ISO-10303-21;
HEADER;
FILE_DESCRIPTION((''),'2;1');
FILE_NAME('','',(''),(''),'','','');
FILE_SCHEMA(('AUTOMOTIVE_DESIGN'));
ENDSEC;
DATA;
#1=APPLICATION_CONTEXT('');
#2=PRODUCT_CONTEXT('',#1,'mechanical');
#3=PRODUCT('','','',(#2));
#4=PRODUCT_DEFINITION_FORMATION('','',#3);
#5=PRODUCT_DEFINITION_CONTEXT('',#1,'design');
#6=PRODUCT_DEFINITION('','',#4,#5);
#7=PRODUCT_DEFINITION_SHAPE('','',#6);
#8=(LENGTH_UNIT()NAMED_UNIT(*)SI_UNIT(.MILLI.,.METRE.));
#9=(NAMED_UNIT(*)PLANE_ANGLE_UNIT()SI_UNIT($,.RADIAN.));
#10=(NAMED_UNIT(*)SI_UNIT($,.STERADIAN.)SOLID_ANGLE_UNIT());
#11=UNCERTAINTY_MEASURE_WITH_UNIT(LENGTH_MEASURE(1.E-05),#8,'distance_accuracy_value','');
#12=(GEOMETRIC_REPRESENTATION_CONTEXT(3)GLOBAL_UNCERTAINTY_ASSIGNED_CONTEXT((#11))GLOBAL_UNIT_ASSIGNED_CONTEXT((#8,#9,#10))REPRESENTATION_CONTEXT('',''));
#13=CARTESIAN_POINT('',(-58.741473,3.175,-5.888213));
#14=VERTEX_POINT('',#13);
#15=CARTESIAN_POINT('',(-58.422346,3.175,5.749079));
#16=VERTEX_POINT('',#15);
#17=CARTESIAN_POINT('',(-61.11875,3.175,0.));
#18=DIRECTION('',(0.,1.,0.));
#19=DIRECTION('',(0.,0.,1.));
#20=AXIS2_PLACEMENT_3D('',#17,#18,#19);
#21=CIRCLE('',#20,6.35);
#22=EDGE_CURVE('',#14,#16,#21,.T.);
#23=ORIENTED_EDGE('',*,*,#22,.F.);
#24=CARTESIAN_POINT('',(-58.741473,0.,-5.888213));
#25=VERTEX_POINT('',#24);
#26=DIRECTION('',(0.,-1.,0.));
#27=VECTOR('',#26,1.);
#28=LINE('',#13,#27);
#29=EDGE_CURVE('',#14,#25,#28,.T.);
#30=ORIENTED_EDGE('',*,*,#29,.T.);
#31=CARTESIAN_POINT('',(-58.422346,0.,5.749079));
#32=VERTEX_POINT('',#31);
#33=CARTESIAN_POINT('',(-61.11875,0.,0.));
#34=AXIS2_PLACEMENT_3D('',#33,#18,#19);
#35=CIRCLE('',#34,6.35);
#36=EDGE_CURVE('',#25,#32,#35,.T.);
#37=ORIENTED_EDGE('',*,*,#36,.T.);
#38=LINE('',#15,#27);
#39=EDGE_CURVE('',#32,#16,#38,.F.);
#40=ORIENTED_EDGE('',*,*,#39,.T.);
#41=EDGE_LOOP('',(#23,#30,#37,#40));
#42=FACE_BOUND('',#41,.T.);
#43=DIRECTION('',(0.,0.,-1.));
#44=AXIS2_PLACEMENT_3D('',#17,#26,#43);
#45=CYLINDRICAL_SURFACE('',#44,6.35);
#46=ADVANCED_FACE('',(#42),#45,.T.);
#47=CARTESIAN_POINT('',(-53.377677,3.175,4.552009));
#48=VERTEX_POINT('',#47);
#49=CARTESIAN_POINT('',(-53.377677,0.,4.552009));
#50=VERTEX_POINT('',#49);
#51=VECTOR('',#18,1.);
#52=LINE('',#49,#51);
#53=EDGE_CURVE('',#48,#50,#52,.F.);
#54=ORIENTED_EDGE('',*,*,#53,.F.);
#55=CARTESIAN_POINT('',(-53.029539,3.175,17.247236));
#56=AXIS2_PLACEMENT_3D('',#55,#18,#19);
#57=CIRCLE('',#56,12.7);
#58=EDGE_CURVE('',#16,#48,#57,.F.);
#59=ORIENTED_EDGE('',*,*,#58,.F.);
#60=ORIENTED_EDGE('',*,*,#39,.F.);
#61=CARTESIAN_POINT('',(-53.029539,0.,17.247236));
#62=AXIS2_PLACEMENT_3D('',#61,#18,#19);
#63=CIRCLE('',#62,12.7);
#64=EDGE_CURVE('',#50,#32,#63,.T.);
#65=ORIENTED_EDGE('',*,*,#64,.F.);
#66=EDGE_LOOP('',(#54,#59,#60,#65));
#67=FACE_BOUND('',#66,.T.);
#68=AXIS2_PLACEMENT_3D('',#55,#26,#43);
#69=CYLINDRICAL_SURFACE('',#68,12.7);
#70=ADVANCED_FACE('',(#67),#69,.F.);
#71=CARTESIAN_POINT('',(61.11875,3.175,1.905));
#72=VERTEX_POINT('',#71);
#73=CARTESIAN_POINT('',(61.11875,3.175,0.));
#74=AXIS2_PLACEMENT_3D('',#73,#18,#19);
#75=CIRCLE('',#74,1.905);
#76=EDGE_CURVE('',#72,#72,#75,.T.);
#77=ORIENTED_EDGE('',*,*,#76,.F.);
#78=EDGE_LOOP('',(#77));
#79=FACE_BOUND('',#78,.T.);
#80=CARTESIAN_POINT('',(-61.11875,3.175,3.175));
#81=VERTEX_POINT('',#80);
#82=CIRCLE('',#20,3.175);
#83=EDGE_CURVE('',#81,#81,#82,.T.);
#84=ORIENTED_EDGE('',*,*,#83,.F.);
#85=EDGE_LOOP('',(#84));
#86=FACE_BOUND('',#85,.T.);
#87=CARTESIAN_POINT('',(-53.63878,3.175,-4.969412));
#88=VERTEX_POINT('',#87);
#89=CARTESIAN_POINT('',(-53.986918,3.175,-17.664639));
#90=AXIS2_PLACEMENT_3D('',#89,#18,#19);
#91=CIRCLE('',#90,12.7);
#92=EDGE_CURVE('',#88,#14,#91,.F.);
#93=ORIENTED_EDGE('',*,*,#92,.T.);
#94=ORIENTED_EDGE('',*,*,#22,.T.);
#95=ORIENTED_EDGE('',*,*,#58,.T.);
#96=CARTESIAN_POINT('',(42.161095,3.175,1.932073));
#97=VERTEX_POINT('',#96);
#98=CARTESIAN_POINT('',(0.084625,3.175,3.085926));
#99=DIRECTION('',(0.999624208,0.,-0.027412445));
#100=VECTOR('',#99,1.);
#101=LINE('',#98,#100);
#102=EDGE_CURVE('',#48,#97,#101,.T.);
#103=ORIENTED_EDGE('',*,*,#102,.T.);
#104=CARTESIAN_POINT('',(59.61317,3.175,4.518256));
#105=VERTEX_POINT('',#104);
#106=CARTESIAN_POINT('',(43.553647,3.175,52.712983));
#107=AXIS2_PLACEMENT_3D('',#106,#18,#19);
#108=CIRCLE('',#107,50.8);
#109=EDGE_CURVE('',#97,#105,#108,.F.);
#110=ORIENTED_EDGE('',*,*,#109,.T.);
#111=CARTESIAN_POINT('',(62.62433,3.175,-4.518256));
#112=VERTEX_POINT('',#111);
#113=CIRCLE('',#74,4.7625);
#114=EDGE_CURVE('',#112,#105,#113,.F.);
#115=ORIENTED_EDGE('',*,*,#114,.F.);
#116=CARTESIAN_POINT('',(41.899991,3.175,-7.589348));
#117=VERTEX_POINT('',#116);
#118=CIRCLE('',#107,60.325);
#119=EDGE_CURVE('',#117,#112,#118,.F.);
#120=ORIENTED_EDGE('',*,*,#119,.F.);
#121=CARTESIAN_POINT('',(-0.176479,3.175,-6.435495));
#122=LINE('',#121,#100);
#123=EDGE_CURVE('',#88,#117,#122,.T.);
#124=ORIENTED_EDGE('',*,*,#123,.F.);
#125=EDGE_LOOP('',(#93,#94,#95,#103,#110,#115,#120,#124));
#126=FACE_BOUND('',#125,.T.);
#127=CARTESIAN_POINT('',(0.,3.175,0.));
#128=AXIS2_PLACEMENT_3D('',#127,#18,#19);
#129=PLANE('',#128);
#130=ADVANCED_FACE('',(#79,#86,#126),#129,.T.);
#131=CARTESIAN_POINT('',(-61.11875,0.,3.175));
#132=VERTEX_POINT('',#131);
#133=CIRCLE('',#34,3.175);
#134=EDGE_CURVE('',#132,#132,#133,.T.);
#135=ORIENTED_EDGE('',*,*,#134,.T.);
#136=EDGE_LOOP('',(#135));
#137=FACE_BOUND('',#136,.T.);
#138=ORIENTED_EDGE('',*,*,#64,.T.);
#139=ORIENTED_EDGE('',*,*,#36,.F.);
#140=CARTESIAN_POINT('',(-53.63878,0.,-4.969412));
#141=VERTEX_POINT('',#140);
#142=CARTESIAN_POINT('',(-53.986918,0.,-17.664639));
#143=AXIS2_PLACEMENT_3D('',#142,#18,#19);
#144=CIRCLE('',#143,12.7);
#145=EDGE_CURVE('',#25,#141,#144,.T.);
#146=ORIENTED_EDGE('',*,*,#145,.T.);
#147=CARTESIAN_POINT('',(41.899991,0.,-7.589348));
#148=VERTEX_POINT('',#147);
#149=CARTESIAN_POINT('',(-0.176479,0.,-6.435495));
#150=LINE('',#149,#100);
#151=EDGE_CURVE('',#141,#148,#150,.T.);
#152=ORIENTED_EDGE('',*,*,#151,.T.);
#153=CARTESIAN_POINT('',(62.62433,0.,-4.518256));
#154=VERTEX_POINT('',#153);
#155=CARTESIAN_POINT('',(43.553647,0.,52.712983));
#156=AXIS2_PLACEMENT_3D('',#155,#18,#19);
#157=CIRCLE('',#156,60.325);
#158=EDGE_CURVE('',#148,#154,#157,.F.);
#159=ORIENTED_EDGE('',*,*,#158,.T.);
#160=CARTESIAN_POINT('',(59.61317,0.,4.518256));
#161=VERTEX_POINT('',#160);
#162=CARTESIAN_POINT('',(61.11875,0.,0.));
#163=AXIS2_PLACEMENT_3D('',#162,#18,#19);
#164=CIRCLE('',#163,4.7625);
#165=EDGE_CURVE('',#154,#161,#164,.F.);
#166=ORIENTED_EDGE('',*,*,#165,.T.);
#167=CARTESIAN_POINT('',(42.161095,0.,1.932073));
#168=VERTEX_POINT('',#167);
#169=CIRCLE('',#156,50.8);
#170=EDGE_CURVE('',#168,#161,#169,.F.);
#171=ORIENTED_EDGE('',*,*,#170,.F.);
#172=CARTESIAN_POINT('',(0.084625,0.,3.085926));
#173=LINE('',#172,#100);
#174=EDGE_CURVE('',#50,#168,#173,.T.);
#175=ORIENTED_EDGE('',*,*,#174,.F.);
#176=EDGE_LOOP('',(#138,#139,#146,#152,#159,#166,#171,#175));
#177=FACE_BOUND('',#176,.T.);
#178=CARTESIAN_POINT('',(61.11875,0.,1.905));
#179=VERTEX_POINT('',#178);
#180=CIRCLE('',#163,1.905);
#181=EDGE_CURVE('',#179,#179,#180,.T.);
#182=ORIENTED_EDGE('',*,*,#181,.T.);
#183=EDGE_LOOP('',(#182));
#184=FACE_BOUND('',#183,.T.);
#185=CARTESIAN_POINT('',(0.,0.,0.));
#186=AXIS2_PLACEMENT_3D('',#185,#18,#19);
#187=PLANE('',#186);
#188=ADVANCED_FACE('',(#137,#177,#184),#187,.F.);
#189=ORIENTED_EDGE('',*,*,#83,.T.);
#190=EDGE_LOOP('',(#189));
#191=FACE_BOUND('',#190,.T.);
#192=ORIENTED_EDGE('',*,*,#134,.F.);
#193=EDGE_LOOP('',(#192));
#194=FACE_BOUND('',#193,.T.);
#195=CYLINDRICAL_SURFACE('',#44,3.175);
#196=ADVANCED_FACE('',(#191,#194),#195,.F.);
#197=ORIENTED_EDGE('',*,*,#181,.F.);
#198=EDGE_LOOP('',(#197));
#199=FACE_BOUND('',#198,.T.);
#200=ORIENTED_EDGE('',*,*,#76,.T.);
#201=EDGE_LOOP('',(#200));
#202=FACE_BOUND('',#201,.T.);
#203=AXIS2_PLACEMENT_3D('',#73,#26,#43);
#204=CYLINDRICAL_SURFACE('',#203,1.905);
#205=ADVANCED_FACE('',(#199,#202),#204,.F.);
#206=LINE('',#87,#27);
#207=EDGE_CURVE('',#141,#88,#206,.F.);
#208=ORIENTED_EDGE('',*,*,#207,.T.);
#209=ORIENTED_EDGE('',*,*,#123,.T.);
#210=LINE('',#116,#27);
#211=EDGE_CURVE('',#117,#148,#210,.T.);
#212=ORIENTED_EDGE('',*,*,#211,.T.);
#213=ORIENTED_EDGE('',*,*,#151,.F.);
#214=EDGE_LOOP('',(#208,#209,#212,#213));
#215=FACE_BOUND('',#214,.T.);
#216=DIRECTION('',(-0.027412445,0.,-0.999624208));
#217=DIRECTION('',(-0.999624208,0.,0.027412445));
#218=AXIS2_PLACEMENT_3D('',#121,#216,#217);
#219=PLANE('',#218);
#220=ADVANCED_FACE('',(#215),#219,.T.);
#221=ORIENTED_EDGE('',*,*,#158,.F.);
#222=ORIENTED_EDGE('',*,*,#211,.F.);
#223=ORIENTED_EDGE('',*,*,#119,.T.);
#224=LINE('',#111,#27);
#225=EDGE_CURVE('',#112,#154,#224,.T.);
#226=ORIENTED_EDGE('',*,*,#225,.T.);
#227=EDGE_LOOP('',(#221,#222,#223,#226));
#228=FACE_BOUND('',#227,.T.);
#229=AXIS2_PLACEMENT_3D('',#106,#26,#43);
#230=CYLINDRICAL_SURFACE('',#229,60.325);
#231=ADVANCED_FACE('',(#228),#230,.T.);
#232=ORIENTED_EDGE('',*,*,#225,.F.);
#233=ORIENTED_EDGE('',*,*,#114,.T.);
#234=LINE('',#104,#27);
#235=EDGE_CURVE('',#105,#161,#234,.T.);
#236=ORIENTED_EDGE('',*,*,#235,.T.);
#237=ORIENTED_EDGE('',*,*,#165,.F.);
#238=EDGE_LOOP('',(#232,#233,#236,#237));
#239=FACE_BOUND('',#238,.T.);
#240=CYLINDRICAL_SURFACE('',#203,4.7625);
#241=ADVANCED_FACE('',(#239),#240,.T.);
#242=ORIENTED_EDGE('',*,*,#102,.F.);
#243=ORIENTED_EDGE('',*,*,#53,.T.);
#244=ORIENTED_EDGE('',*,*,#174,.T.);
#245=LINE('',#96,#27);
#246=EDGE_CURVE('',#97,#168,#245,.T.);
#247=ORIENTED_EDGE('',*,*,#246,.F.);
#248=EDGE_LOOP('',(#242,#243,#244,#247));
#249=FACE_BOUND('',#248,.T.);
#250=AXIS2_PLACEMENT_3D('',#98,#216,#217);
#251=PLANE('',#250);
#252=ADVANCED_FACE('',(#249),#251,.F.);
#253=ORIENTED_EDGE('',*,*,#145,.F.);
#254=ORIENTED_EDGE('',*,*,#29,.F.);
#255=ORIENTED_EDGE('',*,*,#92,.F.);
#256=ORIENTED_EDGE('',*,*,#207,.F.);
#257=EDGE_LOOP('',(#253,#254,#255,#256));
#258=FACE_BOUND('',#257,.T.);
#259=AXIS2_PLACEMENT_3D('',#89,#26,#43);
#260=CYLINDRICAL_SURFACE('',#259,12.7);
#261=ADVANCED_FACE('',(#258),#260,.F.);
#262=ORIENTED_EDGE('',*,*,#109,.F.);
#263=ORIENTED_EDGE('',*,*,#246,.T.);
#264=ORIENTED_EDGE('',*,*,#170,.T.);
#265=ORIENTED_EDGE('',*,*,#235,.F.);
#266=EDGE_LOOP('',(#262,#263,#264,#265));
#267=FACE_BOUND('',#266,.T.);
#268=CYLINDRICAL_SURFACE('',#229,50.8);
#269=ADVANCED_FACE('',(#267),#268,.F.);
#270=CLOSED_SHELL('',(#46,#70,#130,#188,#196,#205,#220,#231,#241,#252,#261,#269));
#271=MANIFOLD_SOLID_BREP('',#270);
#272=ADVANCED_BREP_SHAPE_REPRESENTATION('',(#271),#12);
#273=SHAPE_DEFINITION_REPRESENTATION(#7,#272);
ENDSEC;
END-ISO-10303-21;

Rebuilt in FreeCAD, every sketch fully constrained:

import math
import FreeCAD as App
import Part
import Sketcher
Q = App.Units.Quantity


def edges_at(feature, points):
    """Names of the edges that pass closest to the given points."""
    edges = feature.Shape.Edges
    near = lambda p: min(range(len(edges)), key=lambda i: edges[i].distToShape(Part.Vertex(*p))[0])
    return sorted({f"Edge{near(p) + 1}" for p in points})

doc = App.newDocument("Part")
body = doc.addObject("PartDesign::Body", "Body")

# Sketch on XZ plane
sketch1 = body.newObject("Sketcher::SketchObject", "Sketch")
sketch1.AttachmentSupport = (doc.getObject("XZ_Plane"), [""])
sketch1.MapMode = "FlatFace"
sketch1.addGeometry(Part.ArcOfCircle(Part.Circle(App.Vector(-61.1, 0, 0), App.Vector(0, 0, 1), 6.3), math.radians(47), math.radians(310)), False)
sketch1.addGeometry(Part.LineSegment(App.Vector(-56.8, 4.6, 0), App.Vector(42.2, 1.9, 0)), False)
sketch1.addGeometry(Part.ArcOfCircle(Part.Circle(App.Vector(43.6, 52.7, 0), App.Vector(0, 0, 1), 50.8), math.radians(-91.57), math.radians(-71.57)), False)
sketch1.addGeometry(Part.ArcOfCircle(Part.Circle(App.Vector(61.1, 0, 0), App.Vector(0, 0, 1), 4.8), math.radians(-72), math.radians(108)), False)
sketch1.addGeometry(Part.ArcOfCircle(Part.Circle(App.Vector(43.6, 52.7, 0), App.Vector(0, 0, 1), 60.3), math.radians(-92), math.radians(-72)), False)
sketch1.addGeometry(Part.LineSegment(App.Vector(41.9, -7.6, 0), App.Vector(-57.1, -4.9, 0)), False)
sketch1.addGeometry(Part.Circle(App.Vector(-61.1, 0, 0), App.Vector(0, 0, 1), 3.2), False)
sketch1.addGeometry(Part.Circle(App.Vector(61.1, 0, 0), App.Vector(0, 0, 1), 1.9), False)
sketch1.addConstraint(Sketcher.Constraint("Coincident", 0, 1, 1, 1))
sketch1.addConstraint(Sketcher.Constraint("Tangent", 1, 2, 2, 1))
sketch1.addConstraint(Sketcher.Constraint("Tangent", 2, 2, 3, 2))
sketch1.addConstraint(Sketcher.Constraint("Tangent", 3, 1, 4, 2))
sketch1.addConstraint(Sketcher.Constraint("Tangent", 4, 1, 5, 1))
sketch1.addConstraint(Sketcher.Constraint("Coincident", 5, 2, 0, 2))
sketch1.addConstraint(Sketcher.Constraint("Coincident", 4, 3, 2, 3))
sketch1.addConstraint(Sketcher.Constraint("Coincident", 6, 3, 0, 3))
sketch1.addConstraint(Sketcher.Constraint("Coincident", 7, 3, 3, 3))
sketch1.addConstraint(Sketcher.Constraint("Symmetric", 0, 3, 3, 3, -1, 1))
sketch1.addConstraint(Sketcher.Constraint("PointOnObject", 0, 3, -1))
sketch1.addConstraint(Sketcher.Constraint("Parallel", 1, 5))
sketch1.addConstraint(Sketcher.Constraint("Equal", 1, 5))
sketch1.addConstraint(Sketcher.Constraint("Radius", 2, Q("2 in")))
sketch1.addConstraint(Sketcher.Constraint("Diameter", 6, Q("0.25 in")))
sketch1.addConstraint(Sketcher.Constraint("Diameter", 7, Q("0.15 in")))
sketch1.addConstraint(Sketcher.Constraint("Radius", 0, Q("0.25 in")))
sketch1.addConstraint(Sketcher.Constraint("Radius", 3, Q("0.1875 in")))
sketch1.addConstraint(Sketcher.Constraint("DistanceX", 0, 3, -1, 1, Q("2.40625 in")))
sketch1.addConstraint(Sketcher.Constraint("DistanceY", 1, 2, 0, 1, Q("2.713501 mm")))
pad1 = body.newObject("PartDesign::Pad", "Pad")
pad1.Profile = sketch1
pad1.Length = Q("0.125 in")
pad1.Reversed = True
doc.recompute()

fillet = body.newObject("PartDesign::Fillet", "Fillet")
fillet.Base = (pad1, edges_at(pad1, [(-56.79, 1.587, 4.646), (-57.051, 1.587, -4.876)]))
fillet.Radius = Q("0.5 in")

doc.recompute()
